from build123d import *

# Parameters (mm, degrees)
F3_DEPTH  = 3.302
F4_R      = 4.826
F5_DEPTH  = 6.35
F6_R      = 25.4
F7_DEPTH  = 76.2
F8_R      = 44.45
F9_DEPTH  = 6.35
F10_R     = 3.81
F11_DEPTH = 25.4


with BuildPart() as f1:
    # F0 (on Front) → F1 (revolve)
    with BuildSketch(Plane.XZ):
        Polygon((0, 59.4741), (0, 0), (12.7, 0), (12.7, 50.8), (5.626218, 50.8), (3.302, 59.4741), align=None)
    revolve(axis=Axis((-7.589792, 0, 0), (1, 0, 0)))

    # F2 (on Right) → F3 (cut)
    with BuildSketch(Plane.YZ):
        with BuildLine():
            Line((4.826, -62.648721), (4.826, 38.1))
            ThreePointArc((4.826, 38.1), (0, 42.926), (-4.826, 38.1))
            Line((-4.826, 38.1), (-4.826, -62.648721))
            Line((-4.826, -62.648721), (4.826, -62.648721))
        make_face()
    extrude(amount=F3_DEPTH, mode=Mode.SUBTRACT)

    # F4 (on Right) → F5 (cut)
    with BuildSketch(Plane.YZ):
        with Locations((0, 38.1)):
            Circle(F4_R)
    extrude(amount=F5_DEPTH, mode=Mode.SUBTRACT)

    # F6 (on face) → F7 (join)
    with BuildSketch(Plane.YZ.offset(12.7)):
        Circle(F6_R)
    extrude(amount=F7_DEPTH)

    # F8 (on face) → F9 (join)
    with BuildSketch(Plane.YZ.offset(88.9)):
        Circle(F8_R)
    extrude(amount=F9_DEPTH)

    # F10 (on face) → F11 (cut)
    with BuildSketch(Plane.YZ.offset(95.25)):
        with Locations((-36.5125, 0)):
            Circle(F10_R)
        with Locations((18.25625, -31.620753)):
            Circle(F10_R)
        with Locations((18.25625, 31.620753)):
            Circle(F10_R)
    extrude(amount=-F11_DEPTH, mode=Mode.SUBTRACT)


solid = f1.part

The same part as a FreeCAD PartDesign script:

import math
import FreeCAD as App
import Part
import Sketcher
Q = App.Units.Quantity


def add_polygon(sketch, points):
    """Adds a closed chain of lines whose ends are joined by coincident constraints."""
    first, n = sketch.GeometryCount, len(points)
    for a, b in zip(points, points[1:] + points[:1]):
        sketch.addGeometry(Part.LineSegment(App.Vector(*a, 0), App.Vector(*b, 0)), False)
    for i in range(n):
        sketch.addConstraint(Sketcher.Constraint("Coincident", first + i, 2, first + (i + 1) % n, 1))

doc = App.newDocument("Part")
body = doc.addObject("PartDesign::Body", "Body")

# Sketch on XZ plane
sketch1 = body.newObject("Sketcher::SketchObject", "Sketch")
sketch1.AttachmentSupport = (doc.getObject("XZ_Plane"), [""])
sketch1.MapMode = "FlatFace"
add_polygon(sketch1, [(0, 59.5), (0, 0), (12.7, 0), (12.7, 50.8), (5.6, 50.8), (3.3, 59.5)])  # lines 0-5
sketch1.addConstraint([
    Sketcher.Constraint("Vertical", 0),
    Sketcher.Constraint("Horizontal", 1),
    Sketcher.Constraint("Vertical", 2),
    Sketcher.Constraint("Horizontal", 3),
    Sketcher.Constraint("Horizontal", 5),
    Sketcher.Constraint("Coincident", 0, 2, -1, 1),
    Sketcher.Constraint("DistanceY", 2, 1, 2, 2, Q("2 in")),
    Sketcher.Constraint("DistanceX", 1, 1, 1, 2, Q("0.5 in")),
    Sketcher.Constraint("Angle", 4, Q("104.999999 deg")),
    Sketcher.Constraint("DistanceX", 5, 2, 5, 1, Q("0.13 in")),
    Sketcher.Constraint("DistanceY", 0, 2, 0, 1, Q("2.3415 in")),
])
revolution = body.newObject("PartDesign::Revolution", "Revolution")
revolution.Profile = sketch1
revolution.ReferenceAxis = (sketch1, ["H_Axis"])
revolution.Angle = 360

# Sketch on YZ plane
sketch2 = body.newObject("Sketcher::SketchObject", "Sketch001")
sketch2.AttachmentSupport = (doc.getObject("YZ_Plane"), [""])
sketch2.MapMode = "FlatFace"
sketch2.addGeometry([
    Part.LineSegment(App.Vector(4.8, -62.6, 0), App.Vector(4.8, 38.1, 0)),
    Part.ArcOfCircle(Part.Circle(App.Vector(0, 38.1, 0), App.Vector(0, 0, 1), 4.8), math.radians(0), math.radians(180)),
    Part.LineSegment(App.Vector(-4.8, 38.1, 0), App.Vector(-4.8, -62.6, 0)),
    Part.LineSegment(App.Vector(-4.8, -62.6, 0), App.Vector(4.8, -62.6, 0)),
], False)
sketch2.addConstraint([
    Sketcher.Constraint("Tangent", 0, 2, 1, 1),
    Sketcher.Constraint("Tangent", 1, 2, 2, 1),
    Sketcher.Constraint("Coincident", 2, 2, 3, 1),
    Sketcher.Constraint("Coincident", 3, 2, 0, 1),
    Sketcher.Constraint("Vertical", 0),
    Sketcher.Constraint("Vertical", 2),
    Sketcher.Constraint("Horizontal", 3),
    Sketcher.Constraint("PointOnObject", 1, 3, -2),
    Sketcher.Constraint("Radius", 1, Q("0.19 in")),
    Sketcher.Constraint("DistanceY", -1, 1, 1, 3, Q("1.5 in")),
    Sketcher.Constraint("DistanceY", 0, 1, 0, 2, 100.748721),
])
pocket1 = body.newObject("PartDesign::Pocket", "Pocket")
pocket1.Profile = sketch2
pocket1.Length = Q("0.13 in")
pocket1.Reversed = True

# Sketch on YZ plane
sketch3 = body.newObject("Sketcher::SketchObject", "Sketch002")
sketch3.AttachmentSupport = (doc.getObject("YZ_Plane"), [""])
sketch3.MapMode = "FlatFace"
sketch3.addGeometry(Part.Circle(App.Vector(0, 38.1, 0), App.Vector(0, 0, 1), 4.8), False)
sketch3.addConstraint([
    Sketcher.Constraint("PointOnObject", 0, 3, -2),
    Sketcher.Constraint("Diameter", 0, Q("0.38 in")),
    Sketcher.Constraint("DistanceY", -1, 1, 0, 3, Q("1.5 in")),
])
pocket2 = body.newObject("PartDesign::Pocket", "Pocket001")
pocket2.Profile = sketch3
pocket2.Length = Q("0.25 in")
pocket2.Reversed = True

# Sketch on YZ plane
sketch4 = body.newObject("Sketcher::SketchObject", "Sketch003")
sketch4.AttachmentSupport = (doc.getObject("YZ_Plane"), [""])
sketch4.MapMode = "FlatFace"
sketch4.AttachmentOffset = App.Placement(App.Vector(0, 0, 0.5 * 25.4), App.Rotation())
sketch4.addGeometry(Part.Circle(App.Vector(0, 0, 0), App.Vector(0, 0, 1), 25), False)
sketch4.addConstraint([
    Sketcher.Constraint("Coincident", 0, 3, -1, 1),
    Sketcher.Constraint("Diameter", 0, Q("2 in")),
])
pad1 = body.newObject("PartDesign::Pad", "Pad")
pad1.Profile = sketch4
pad1.Length = Q("3 in")

# Sketch on YZ plane
sketch5 = body.newObject("Sketcher::SketchObject", "Sketch004")
sketch5.AttachmentSupport = (doc.getObject("YZ_Plane"), [""])
sketch5.MapMode = "FlatFace"
sketch5.AttachmentOffset = App.Placement(App.Vector(0, 0, 3.5 * 25.4), App.Rotation())
sketch5.addGeometry(Part.Circle(App.Vector(0, 0, 0), App.Vector(0, 0, 1), 44), False)
sketch5.addConstraint([
    Sketcher.Constraint("Coincident", 0, 3, -1, 1),
    Sketcher.Constraint("Diameter", 0, Q("3.5 in")),
])
pad2 = body.newObject("PartDesign::Pad", "Pad001")
pad2.Profile = sketch5
pad2.Length = Q("0.25 in")

# Sketch on YZ plane
sketch6 = body.newObject("Sketcher::SketchObject", "Sketch005")
sketch6.AttachmentSupport = (doc.getObject("YZ_Plane"), [""])
sketch6.MapMode = "FlatFace"
sketch6.AttachmentOffset = App.Placement(App.Vector(0, 0, 3.75 * 25.4), App.Rotation())
sketch6.addGeometry([
    Part.Circle(App.Vector(-36.5, 0, 0), App.Vector(0, 0, 1), 3.8),
    Part.Circle(App.Vector(18.3, -31.6, 0), App.Vector(0, 0, 1), 3.8),
    Part.Circle(App.Vector(18.3, 31.6, 0), App.Vector(0, 0, 1), 3.8),
], False)
sketch6.addConstraint([
    Sketcher.Constraint("Equal", 0, 1),
    Sketcher.Constraint("Equal", 1, 2),
    Sketcher.Constraint("Symmetric", 1, 3, 2, 3, -1),
    Sketcher.Constraint("PointOnObject", 0, 3, -1),
    Sketcher.Constraint("Diameter", 0, Q("0.3 in")),
    Sketcher.Constraint("DistanceX", 0, 3, -1, 1, Q("1.4375 in")),
    Sketcher.Constraint("DistanceX", -1, 1, 1, 3, Q("0.71875 in")),
    Sketcher.Constraint("DistanceY", 1, 3, -1, 1, 31.620753),
])
pocket3 = body.newObject("PartDesign::Pocket", "Pocket002")
pocket3.Profile = sketch6
pocket3.Length = Q("1 in")

doc.recompute()
